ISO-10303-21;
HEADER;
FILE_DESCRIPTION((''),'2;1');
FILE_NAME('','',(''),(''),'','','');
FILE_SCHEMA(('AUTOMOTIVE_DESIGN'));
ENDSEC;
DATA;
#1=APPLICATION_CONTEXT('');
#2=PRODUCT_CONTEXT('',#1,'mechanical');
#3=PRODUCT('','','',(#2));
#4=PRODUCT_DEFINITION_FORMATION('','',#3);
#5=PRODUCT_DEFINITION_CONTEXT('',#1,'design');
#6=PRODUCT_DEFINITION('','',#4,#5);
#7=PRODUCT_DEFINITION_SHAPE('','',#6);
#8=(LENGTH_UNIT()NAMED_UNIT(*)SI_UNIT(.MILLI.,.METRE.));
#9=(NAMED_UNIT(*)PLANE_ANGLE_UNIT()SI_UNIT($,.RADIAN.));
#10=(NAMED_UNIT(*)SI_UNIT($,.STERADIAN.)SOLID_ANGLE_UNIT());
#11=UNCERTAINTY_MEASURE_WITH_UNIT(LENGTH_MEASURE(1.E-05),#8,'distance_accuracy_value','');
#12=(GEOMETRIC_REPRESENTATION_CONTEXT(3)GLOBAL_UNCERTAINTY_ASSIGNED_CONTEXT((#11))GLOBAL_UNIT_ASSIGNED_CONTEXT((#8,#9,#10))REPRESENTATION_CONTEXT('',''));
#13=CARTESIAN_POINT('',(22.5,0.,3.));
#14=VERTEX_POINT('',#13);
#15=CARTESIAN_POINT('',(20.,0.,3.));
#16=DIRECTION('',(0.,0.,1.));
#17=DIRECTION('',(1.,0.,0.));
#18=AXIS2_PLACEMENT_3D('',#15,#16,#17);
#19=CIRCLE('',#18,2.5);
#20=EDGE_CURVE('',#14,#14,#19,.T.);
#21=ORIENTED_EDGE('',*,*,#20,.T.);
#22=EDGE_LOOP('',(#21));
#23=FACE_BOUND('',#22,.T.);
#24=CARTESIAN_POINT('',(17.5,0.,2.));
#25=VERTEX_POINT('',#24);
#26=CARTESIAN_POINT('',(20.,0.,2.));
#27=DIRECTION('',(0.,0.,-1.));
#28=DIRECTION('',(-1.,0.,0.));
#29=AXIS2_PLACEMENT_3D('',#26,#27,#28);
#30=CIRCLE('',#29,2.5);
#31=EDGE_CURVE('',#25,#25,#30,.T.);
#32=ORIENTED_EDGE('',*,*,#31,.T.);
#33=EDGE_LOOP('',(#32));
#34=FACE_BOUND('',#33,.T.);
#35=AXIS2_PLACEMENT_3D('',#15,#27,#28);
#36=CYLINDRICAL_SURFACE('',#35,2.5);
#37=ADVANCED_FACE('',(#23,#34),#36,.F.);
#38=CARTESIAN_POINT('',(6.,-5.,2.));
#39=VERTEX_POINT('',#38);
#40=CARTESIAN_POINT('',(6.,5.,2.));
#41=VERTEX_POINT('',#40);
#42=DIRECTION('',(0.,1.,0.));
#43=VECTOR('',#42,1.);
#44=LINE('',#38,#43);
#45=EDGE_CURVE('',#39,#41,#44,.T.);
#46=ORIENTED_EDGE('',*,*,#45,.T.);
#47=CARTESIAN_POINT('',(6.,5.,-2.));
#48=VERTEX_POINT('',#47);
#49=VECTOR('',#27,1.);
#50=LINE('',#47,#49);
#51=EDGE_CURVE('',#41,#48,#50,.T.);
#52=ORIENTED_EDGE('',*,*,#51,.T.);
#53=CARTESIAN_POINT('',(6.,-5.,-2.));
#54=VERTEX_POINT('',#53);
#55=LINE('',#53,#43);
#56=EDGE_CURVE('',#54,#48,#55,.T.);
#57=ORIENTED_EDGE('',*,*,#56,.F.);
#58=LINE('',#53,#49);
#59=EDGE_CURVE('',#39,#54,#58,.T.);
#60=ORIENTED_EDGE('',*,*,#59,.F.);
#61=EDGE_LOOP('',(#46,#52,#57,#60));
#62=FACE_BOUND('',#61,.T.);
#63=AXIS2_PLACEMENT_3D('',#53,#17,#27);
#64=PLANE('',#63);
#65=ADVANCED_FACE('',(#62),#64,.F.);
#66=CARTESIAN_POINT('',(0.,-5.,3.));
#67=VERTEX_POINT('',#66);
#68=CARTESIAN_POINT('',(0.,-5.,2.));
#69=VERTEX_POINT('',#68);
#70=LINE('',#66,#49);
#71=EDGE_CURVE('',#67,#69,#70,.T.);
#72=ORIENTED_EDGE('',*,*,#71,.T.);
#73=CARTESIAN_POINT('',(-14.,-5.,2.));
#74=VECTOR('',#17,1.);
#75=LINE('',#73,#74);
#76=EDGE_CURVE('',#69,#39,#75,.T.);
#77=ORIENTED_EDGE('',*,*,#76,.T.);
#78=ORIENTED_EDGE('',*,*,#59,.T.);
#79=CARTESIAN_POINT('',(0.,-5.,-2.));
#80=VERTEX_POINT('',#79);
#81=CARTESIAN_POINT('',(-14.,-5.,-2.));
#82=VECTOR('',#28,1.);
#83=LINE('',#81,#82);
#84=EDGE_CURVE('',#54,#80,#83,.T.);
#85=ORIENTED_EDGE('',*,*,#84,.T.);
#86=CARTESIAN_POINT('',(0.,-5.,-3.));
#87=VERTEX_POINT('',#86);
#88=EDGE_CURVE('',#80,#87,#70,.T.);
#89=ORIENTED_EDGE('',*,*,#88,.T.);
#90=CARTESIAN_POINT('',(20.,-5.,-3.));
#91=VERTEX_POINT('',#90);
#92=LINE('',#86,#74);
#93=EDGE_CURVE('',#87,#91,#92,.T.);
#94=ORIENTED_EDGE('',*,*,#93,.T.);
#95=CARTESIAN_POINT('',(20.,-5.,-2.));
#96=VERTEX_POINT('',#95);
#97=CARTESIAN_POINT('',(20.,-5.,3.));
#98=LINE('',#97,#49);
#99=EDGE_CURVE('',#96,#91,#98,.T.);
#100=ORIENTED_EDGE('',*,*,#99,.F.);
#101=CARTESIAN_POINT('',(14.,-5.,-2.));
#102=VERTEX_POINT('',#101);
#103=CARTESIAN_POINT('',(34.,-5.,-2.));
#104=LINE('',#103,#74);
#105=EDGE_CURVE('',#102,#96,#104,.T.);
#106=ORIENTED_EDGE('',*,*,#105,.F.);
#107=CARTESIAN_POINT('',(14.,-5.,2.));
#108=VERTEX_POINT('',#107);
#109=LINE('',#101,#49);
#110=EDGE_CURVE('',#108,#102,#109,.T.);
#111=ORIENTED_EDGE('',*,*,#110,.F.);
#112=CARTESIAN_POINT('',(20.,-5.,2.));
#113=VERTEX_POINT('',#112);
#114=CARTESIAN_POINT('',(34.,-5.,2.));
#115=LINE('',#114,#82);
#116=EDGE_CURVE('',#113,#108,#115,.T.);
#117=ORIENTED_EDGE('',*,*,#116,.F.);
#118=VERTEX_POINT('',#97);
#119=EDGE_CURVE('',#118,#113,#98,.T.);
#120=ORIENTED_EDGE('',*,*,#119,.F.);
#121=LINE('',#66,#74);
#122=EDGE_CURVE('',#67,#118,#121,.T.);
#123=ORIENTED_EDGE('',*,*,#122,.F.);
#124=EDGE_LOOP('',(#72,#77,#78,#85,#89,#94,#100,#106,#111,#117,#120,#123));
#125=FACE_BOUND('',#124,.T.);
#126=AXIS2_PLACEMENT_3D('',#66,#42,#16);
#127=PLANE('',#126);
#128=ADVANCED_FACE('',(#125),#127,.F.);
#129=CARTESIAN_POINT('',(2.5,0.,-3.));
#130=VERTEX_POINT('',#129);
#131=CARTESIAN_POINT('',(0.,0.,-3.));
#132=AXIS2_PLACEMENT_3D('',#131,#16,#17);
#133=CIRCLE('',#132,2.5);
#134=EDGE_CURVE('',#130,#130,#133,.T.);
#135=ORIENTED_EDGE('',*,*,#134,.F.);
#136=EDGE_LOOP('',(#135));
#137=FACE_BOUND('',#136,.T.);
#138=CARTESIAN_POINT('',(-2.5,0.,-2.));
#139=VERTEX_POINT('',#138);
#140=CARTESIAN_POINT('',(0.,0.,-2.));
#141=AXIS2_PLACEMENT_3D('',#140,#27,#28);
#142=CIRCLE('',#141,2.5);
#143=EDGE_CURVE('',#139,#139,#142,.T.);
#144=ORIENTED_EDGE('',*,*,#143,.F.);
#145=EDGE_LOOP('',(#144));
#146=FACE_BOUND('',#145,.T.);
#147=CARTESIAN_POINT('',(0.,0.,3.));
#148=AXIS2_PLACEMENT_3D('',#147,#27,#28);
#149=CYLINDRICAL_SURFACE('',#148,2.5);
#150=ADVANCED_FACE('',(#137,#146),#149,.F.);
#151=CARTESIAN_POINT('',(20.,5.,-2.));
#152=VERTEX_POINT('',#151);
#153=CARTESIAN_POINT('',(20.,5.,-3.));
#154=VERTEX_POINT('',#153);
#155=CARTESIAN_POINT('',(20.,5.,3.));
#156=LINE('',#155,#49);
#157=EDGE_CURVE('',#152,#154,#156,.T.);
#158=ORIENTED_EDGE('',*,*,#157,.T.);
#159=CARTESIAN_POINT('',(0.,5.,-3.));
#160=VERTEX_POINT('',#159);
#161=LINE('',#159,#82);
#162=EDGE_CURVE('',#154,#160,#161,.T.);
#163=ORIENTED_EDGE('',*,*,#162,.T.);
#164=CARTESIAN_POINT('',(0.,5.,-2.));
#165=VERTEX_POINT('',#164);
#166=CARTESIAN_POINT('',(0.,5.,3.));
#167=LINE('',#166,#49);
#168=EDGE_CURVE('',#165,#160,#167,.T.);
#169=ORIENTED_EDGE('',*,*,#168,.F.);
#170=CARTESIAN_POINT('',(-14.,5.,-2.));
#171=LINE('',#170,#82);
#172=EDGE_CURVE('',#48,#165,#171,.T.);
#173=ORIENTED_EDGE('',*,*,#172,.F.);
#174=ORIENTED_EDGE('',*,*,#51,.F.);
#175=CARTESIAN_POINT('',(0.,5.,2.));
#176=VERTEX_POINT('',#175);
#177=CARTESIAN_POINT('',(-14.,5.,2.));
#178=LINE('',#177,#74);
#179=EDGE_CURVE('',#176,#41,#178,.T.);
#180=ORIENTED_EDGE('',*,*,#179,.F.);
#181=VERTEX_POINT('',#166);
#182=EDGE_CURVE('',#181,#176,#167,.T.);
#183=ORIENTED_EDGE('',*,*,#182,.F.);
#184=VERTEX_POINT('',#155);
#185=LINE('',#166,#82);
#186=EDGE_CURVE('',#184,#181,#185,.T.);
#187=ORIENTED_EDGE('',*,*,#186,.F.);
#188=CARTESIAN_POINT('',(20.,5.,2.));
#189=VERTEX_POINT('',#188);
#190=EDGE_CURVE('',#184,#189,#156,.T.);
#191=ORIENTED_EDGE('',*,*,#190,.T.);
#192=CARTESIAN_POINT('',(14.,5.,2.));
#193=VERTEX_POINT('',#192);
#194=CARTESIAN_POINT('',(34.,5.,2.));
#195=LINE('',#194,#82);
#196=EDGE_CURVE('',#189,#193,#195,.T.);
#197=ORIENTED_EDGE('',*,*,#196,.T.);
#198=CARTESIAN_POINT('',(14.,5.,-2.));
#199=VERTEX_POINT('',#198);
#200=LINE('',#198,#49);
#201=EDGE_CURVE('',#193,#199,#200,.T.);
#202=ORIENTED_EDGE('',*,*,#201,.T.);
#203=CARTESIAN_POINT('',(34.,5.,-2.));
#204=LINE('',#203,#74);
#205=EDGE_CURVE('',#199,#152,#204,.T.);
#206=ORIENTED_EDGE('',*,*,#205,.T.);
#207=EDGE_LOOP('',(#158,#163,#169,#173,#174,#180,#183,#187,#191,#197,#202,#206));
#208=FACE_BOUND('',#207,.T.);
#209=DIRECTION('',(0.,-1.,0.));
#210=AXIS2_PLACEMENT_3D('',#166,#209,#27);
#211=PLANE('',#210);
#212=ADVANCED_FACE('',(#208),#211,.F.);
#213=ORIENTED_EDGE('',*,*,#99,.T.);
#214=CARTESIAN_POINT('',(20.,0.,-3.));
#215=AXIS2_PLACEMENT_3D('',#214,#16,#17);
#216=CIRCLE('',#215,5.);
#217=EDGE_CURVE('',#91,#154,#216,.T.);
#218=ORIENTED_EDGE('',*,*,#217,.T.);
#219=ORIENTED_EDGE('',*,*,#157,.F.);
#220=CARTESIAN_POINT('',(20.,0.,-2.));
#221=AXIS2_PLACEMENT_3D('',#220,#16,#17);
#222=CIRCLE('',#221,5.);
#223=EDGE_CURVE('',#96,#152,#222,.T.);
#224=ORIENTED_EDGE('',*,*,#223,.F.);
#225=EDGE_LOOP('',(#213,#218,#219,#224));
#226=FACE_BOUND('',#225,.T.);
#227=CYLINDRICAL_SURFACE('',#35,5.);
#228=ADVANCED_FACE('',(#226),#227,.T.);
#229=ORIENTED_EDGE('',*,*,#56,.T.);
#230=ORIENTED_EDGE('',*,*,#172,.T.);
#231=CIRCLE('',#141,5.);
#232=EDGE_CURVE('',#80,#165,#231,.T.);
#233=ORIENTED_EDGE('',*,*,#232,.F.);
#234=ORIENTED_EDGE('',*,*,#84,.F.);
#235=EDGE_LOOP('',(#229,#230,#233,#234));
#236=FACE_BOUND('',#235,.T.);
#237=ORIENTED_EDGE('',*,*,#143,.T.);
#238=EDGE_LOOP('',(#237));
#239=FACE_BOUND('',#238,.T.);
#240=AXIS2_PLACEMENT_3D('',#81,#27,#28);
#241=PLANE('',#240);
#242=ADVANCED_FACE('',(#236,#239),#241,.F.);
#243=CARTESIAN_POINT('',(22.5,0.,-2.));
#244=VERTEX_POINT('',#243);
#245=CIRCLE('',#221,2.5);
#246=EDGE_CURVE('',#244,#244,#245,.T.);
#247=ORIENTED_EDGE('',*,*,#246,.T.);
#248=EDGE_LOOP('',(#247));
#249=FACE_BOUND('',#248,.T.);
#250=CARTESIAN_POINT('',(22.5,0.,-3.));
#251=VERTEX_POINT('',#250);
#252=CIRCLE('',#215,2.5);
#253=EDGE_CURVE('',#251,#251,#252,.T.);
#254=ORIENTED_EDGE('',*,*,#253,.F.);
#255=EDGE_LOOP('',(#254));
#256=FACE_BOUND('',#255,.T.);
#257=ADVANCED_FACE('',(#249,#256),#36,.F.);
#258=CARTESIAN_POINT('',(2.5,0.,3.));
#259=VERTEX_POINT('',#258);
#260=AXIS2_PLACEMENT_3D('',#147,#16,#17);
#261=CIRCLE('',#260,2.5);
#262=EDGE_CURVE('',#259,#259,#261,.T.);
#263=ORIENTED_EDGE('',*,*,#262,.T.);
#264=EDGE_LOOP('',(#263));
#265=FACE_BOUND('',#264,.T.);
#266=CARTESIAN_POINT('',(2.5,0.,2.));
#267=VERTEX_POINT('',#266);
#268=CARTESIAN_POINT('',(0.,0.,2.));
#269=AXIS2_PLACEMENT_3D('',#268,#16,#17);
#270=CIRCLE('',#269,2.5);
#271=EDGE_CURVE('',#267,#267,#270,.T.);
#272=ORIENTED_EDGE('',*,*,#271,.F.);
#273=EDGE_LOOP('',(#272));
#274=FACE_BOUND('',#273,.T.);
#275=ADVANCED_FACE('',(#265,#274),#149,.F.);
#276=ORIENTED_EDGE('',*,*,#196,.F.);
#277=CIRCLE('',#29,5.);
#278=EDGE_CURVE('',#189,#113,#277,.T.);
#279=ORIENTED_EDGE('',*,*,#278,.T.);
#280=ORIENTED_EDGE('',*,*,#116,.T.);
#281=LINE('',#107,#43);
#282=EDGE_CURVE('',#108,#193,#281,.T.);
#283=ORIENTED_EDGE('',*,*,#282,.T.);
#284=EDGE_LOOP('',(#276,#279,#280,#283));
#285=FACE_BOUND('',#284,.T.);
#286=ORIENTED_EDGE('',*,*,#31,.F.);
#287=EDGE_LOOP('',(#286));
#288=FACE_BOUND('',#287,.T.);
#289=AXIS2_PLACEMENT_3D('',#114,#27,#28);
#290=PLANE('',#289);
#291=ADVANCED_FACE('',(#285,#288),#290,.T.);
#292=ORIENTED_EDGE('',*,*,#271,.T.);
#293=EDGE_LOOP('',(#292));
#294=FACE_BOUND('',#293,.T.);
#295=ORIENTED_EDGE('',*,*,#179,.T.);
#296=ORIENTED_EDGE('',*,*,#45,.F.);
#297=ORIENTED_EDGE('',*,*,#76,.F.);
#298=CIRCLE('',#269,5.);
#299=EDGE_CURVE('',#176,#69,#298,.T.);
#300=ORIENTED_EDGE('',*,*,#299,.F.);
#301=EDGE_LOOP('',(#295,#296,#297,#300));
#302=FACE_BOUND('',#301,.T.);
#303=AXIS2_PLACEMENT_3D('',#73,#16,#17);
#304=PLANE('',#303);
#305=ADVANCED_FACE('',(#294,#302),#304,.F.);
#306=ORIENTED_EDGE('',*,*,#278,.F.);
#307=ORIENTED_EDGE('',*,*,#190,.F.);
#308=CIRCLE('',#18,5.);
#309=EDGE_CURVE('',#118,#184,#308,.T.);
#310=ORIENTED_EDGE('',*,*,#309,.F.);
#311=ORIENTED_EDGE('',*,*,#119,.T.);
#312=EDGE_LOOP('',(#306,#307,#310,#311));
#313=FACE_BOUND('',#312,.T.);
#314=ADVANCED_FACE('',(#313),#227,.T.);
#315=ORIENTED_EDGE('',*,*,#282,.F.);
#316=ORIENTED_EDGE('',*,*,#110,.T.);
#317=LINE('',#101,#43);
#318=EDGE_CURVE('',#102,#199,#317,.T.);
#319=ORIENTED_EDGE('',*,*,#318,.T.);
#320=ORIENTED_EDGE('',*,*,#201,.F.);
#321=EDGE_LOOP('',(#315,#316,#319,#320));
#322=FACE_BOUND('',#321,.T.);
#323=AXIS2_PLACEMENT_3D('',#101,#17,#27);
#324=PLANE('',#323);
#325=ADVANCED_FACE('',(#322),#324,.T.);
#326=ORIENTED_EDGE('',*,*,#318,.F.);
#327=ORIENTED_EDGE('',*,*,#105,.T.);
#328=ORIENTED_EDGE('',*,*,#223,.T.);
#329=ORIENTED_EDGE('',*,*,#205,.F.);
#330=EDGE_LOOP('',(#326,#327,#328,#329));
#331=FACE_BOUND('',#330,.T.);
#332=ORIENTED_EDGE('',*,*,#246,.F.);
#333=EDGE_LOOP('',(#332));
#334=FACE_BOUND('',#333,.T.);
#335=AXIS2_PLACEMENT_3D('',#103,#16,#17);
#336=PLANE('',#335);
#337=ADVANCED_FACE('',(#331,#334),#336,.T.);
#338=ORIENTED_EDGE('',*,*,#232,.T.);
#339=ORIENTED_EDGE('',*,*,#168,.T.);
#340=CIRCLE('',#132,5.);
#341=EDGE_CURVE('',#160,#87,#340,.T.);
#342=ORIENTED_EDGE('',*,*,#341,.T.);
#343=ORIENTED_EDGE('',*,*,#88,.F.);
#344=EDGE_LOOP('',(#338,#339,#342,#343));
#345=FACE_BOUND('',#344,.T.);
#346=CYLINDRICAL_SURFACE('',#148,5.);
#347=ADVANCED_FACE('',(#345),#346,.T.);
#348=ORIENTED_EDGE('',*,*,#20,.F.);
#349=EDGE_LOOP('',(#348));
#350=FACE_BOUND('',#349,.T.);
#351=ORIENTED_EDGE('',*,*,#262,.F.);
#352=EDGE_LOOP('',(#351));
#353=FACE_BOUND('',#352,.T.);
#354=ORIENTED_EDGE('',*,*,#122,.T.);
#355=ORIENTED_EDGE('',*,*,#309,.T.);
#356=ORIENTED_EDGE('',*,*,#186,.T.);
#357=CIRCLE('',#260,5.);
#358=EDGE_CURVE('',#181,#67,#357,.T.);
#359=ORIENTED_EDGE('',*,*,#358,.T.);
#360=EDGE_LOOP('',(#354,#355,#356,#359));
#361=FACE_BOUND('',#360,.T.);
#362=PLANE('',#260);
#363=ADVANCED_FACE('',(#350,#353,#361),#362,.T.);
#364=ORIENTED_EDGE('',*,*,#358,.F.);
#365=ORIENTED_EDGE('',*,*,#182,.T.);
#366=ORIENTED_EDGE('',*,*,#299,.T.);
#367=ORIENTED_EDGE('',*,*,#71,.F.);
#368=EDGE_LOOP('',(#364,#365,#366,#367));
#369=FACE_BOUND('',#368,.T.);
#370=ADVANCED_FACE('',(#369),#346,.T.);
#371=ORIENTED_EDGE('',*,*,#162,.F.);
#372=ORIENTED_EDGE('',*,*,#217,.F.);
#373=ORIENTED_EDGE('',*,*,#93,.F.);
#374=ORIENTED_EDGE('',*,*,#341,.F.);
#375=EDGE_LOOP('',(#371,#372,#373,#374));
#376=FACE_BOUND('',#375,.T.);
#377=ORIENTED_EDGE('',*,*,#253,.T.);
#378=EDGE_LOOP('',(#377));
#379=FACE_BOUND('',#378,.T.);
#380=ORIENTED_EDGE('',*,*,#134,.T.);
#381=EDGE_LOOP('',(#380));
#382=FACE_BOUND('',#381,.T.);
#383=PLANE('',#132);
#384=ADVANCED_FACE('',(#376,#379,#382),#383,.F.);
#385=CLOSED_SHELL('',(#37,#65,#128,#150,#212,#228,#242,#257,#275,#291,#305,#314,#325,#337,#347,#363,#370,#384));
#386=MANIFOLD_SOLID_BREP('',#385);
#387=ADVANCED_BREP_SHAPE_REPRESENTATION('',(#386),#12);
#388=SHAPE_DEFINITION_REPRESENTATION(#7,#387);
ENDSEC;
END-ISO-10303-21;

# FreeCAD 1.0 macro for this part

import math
import FreeCAD as App
import Part
import Sketcher

V = App.Vector
Q = App.Units.Quantity

doc = App.newDocument("Part")
body = doc.addObject("PartDesign::Body", "Body")

# Sketch on XY plane
sketch1 = body.newObject("Sketcher::SketchObject", "Sketch")
sketch1.AttachmentSupport = (doc.getObject("XY_Plane"), [""])
sketch1.MapMode = "FlatFace"
sketch1.addGeometry(Part.LineSegment(V(20, 5, 0), V(0, 5, 0)), False)
sketch1.addGeometry(Part.ArcOfCircle(Part.Circle(V(0, 0, 0), V(0, 0, 1), 5), math.radians(90), math.radians(270)), False)
sketch1.addGeometry(Part.LineSegment(V(0, -5, 0), V(20, -5, 0)), False)
sketch1.addGeometry(Part.ArcOfCircle(Part.Circle(V(20, 0, 0), V(0, 0, 1), 5), math.radians(-90), math.radians(90)), False)
sketch1.addGeometry(Part.Circle(V(20, 0, 0), V(0, 0, 1), 2.5), False)
sketch1.addGeometry(Part.Circle(V(0, 0, 0), V(0, 0, 1), 2.5), False)
sketch1.addConstraint(Sketcher.Constraint("Tangent", 0, 2, 1, 1))
sketch1.addConstraint(Sketcher.Constraint("Tangent", 1, 2, 2, 1))
sketch1.addConstraint(Sketcher.Constraint("Tangent", 2, 2, 3, 1))
sketch1.addConstraint(Sketcher.Constraint("Tangent", 3, 2, 0, 1))
sketch1.addConstraint(Sketcher.Constraint("Horizontal", 0))
sketch1.addConstraint(Sketcher.Constraint("Horizontal", 2))
sketch1.addConstraint(Sketcher.Constraint("Coincident", 1, 3, -1, 1))
sketch1.addConstraint(Sketcher.Constraint("Coincident", 5, 3, -1, 1))
sketch1.addConstraint(Sketcher.Constraint("Coincident", 4, 3, 3, 3))
sketch1.addConstraint(Sketcher.Constraint("Equal", 4, 5))
sketch1.addConstraint(Sketcher.Constraint("Diameter", 4, Q("5 mm")))
sketch1.addConstraint(Sketcher.Constraint("Radius", 1, Q("5 mm")))
sketch1.addConstraint(Sketcher.Constraint("DistanceX", 0, 2, 0, 1, Q("20 mm")))
pad1 = body.newObject("PartDesign::Pad", "Pad")
pad1.Profile = sketch1
pad1.Length = 6
pad1.Midplane = True

# Sketch on XZ plane
sketch2 = body.newObject("Sketcher::SketchObject", "Sketch001")
sketch2.AttachmentSupport = (doc.getObject("XZ_Plane"), [""])
sketch2.MapMode = "FlatFace"
sketch2.AttachmentOffset = App.Placement(V(0, 0, -5), App.Rotation())
sketch2.addGeometry(Part.LineSegment(V(-14, -2, 0), V(-14, 2, 0)), False)
sketch2.addGeometry(Part.LineSegment(V(-14, 2, 0), V(6, 2, 0)), False)
sketch2.addGeometry(Part.LineSegment(V(6, 2, 0), V(6, -2, 0)), False)
sketch2.addGeometry(Part.LineSegment(V(6, -2, 0), V(-14, -2, 0)), False)
sketch2.addConstraint(Sketcher.Constraint("Coincident", 0, 2, 1, 1))
sketch2.addConstraint(Sketcher.Constraint("Coincident", 1, 2, 2, 1))
sketch2.addConstraint(Sketcher.Constraint("Coincident", 2, 2, 3, 1))
sketch2.addConstraint(Sketcher.Constraint("Coincident", 3, 2, 0, 1))
sketch2.addConstraint(Sketcher.Constraint("Vertical", 0))
sketch2.addConstraint(Sketcher.Constraint("Horizontal", 1))
sketch2.addConstraint(Sketcher.Constraint("Vertical", 2))
sketch2.addConstraint(Sketcher.Constraint("Horizontal", 3))
sketch2.addConstraint(Sketcher.Constraint("DistanceX", 1, 1, 1, 2, Q("20 mm")))
sketch2.addConstraint(Sketcher.Constraint("DistanceY", 0, 1, 0, 2, Q("4 mm")))
sketch2.addConstraint(Sketcher.Constraint("DistanceX", 0, 2, -1, 1, Q("14 mm")))
sketch2.addConstraint(Sketcher.Constraint("DistanceY", -1, 1, 0, 2, Q("2 mm")))
pocket1 = body.newObject("PartDesign::Pocket", "Pocket")
pocket1.Profile = sketch2
pocket1.Type = "ThroughAll"
pocket1.Reversed = True
doc.recompute()

datumplane = body.newObject("PartDesign::Plane", "DatumPlane")
datumplane.AttachmentSupport = (doc.getObject("YZ_Plane"), [""])
datumplane.MapMode = "FlatFace"
datumplane.AttachmentOffset = App.Placement(V(0, 0, 10), App.Rotation())
mirrored = body.newObject("PartDesign::Mirrored", "Mirrored")
mirrored.Originals = [pocket1]
mirrored.MirrorPlane = (datumplane, [""])
body.Tip = mirrored

doc.recompute()
